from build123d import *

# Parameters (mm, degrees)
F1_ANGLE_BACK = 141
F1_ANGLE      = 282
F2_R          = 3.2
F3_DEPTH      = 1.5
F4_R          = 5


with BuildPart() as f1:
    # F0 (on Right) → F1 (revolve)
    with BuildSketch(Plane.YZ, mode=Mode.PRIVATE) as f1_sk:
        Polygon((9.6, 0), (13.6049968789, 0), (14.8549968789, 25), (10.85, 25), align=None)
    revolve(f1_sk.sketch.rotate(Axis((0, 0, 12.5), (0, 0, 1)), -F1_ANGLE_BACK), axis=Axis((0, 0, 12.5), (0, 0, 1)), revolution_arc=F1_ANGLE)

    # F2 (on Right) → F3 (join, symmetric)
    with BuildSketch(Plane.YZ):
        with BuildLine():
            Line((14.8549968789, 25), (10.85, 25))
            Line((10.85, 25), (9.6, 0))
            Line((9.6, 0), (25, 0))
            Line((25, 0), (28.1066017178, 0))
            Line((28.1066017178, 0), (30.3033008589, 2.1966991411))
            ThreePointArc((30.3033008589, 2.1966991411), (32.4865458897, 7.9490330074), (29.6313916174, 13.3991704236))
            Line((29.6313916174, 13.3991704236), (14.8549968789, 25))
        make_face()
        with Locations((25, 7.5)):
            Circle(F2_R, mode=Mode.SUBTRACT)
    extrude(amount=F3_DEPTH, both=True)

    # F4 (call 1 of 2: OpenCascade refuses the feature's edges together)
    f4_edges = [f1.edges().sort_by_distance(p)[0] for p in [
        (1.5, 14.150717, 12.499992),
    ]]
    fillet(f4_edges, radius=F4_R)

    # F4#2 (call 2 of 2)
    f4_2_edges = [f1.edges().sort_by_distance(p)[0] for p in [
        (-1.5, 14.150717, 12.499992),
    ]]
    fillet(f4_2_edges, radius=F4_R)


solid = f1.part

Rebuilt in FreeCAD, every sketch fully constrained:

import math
import FreeCAD as App
import Part
import Sketcher
from FreeCAD import Vector
Q = App.Units.Quantity


def edges_at(feature, points):
    """Names of the edges that pass closest to the given points."""
    edges = feature.Shape.Edges
    near = lambda p: min(range(len(edges)), key=lambda i: edges[i].distToShape(Part.Vertex(*p))[0])
    return sorted({f"Edge{near(p) + 1}" for p in points})

doc = App.newDocument("Part")
params = doc.addObject("Spreadsheet::Sheet", "Params")
for row, (alias, value) in enumerate([
    ("revolution_angle", "282 deg"),
    ("sketch2_diameter", "6.4 mm"),
    ("sketch2_radius", "7.5 mm"),
    ("pad1_length", "3 mm"),
    ("fillet_radius", "5 mm"),
    ("fillet2_radius", "5 mm"),
], start=1):
    params.set(f"A{row}", alias)
    params.set(f"B{row}", "=" + value)
    params.setAlias(f"B{row}", alias)

body = doc.addObject("PartDesign::Body", "Body")

# Sketch on an angled plane
sketch1 = doc.addObject("Sketcher::SketchObject", "Sketch")
body.addObject(sketch1)
sketch1.Placement = App.Placement(Vector(0, 0, 0), App.Rotation(Vector(0.629320391, -0.777145961, 0), Vector(0, 0, 0.999999999), Vector(-0.777145961, -0.629320391, 0), "ZXY"))
sketch1.addGeometry([
    Part.LineSegment(Vector(9.6, 0, 0), Vector(13.604997, 0, 0)),
    Part.LineSegment(Vector(13.604997, 0, 0), Vector(14.854997, 25, 0)),
    Part.LineSegment(Vector(14.854997, 25, 0), Vector(10.85, 25, 0)),
    Part.LineSegment(Vector(10.85, 25, 0), Vector(9.6, 0, 0)),
], False)
sketch1.addConstraint([
    Sketcher.Constraint("Coincident", 0, 2, 1, 1),
    Sketcher.Constraint("Coincident", 1, 2, 2, 1),
    Sketcher.Constraint("Coincident", 2, 2, 3, 1),
    Sketcher.Constraint("Coincident", 3, 2, 0, 1),
    Sketcher.Constraint("Horizontal", 0),
    Sketcher.Constraint("Horizontal", 2),
    Sketcher.Constraint("PointOnObject", 0, 2, -1),
    Sketcher.Constraint("Parallel", 1, 3),
    Sketcher.Constraint("DistanceY", -1, 1, 1, 2, Q("25 mm")),
    Sketcher.Constraint("DistanceX", -1, 1, 3, 2, Q("9.6 mm")),
    Sketcher.Constraint("DistanceX", -1, 1, 2, 2, Q("10.85 mm")),
    Sketcher.Constraint("DistanceX", 0, 1, 0, 2, Q("4.004997 mm")),
])
revolution = doc.addObject("PartDesign::Revolution", "Revolution")
body.addObject(revolution)
revolution.Profile = sketch1
revolution.ReferenceAxis = (sketch1, ["V_Axis"])
revolution.setExpression("Angle", "Params.revolution_angle")

# Sketch on YZ plane
sketch2 = doc.addObject("Sketcher::SketchObject", "Sketch001")
body.addObject(sketch2)
sketch2.AttachmentSupport = (doc.YZ_Plane, [""])
sketch2.MapMode = "FlatFace"
sketch2.addGeometry([
    Part.LineSegment(Vector(14.854997, 25, 0), Vector(10.85, 25, 0)),  # 0
    Part.LineSegment(Vector(10.85, 25, 0), Vector(9.6, 0, 0)),  # 1
    Part.LineSegment(Vector(9.6, 0, 0), Vector(28.106602, 0, 0)),  # 2
    Part.LineSegment(Vector(28.106602, 0, 0), Vector(30.303301, 2.196699, 0)),  # 3
    Part.ArcOfCircle(Part.Circle(Vector(25, 7.5, 0), Vector(0, 0, 1), 7.5), math.radians(-45), math.radians(51.864824)),  # 4
    Part.LineSegment(Vector(29.631392, 13.39917, 0), Vector(14.854997, 25, 0)),  # 5
    Part.Circle(Vector(25, 7.5, 0), Vector(0, 0, 1), 3.2),  # 6
], False)
sketch2.addConstraint([
    Sketcher.Constraint("Coincident", 0, 2, 1, 1),
    Sketcher.Constraint("Coincident", 1, 2, 2, 1),
    Sketcher.Constraint("Coincident", 2, 2, 3, 1),
    Sketcher.Constraint("Tangent", 3, 2, 4, 1),
    Sketcher.Constraint("Tangent", 4, 2, 5, 1),
    Sketcher.Constraint("Coincident", 5, 2, 0, 1),
    Sketcher.Constraint("Horizontal", 0),
    Sketcher.Constraint("Horizontal", 2),
    Sketcher.Constraint("Coincident", 6, 3, 4, 3),
    Sketcher.Constraint("PointOnObject", 1, 2, -1),
    Sketcher.Constraint("Diameter", 6, Q("6.4 mm")),
    Sketcher.Constraint("Radius", 4, Q("7.5 mm")),
    Sketcher.Constraint("Angle", 3, Q("45 deg")),
    Sketcher.Constraint("DistanceX", -1, 1, 4, 3, Q("25 mm")),
    Sketcher.Constraint("DistanceY", -1, 1, 0, 2, Q("25 mm")),
    Sketcher.Constraint("DistanceY", -1, 1, 4, 3, Q("7.5 mm")),
    Sketcher.Constraint("DistanceX", -1, 1, 1, 2, Q("9.6 mm")),
    Sketcher.Constraint("DistanceX", -1, 1, 0, 2, Q("10.85 mm")),
    Sketcher.Constraint("DistanceX", 0, 2, 0, 1, Q("4.004997 mm")),
])
sketch2.setExpression("Constraints[10]", "Params.sketch2_diameter")
sketch2.setExpression("Constraints[11]", "Params.sketch2_radius")
pad1 = doc.addObject("PartDesign::Pad", "Pad")
body.addObject(pad1)
pad1.Profile = sketch2
pad1.setExpression("Length", "Params.pad1_length")
pad1.Midplane = True
doc.recompute()

fillet = doc.addObject("PartDesign::Fillet", "Fillet")
body.addObject(fillet)
fillet.Base = (pad1, edges_at(pad1, [(1.5, 14.151, 12.5)]))
fillet.setExpression("Radius", "Params.fillet_radius")
doc.recompute()

fillet2 = doc.addObject("PartDesign::Fillet", "Fillet001")
body.addObject(fillet2)
fillet2.Base = (fillet, edges_at(fillet, [(-1.5, 14.151, 12.5)]))
fillet2.setExpression("Radius", "Params.fillet2_radius")

doc.recompute()
